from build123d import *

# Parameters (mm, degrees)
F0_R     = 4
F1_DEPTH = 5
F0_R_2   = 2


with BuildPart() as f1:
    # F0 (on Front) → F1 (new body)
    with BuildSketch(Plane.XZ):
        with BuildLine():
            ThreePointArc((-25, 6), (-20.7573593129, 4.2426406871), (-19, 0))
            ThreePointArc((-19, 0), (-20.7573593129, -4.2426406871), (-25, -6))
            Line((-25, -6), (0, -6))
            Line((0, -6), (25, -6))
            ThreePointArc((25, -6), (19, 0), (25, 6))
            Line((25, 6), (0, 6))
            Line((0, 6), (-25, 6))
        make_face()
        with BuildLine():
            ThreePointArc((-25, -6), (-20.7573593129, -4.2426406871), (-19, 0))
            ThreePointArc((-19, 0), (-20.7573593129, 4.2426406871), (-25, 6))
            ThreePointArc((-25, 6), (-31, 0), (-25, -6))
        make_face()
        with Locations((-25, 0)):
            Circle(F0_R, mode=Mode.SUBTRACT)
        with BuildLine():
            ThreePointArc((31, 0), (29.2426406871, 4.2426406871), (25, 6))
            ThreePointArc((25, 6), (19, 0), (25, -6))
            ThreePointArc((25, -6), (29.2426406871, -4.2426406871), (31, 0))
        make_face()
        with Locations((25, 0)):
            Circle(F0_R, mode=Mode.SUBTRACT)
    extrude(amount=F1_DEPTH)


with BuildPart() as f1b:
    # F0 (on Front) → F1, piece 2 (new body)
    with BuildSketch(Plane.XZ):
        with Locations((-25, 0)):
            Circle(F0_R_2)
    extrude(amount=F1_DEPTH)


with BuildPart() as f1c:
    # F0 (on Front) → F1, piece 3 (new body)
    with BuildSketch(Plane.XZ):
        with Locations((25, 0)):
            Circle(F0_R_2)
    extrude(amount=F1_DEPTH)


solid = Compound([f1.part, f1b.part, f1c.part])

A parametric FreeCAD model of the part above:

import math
import FreeCAD as App
import Part
import Sketcher
from FreeCAD import Vector
Q = App.Units.Quantity

doc = App.newDocument("Part")
body = doc.addObject("PartDesign::Body", "Body")

sketch1 = doc.addObject("Sketcher::SketchObject", "Sketch")
body.addObject(sketch1)
sketch1.AttachmentSupport = (doc.XZ_Plane, [""])
sketch1.MapMode = "FlatFace"
sketch1.addGeometry([
    Part.LineSegment(Vector(-25, -6, 0), Vector(25, -6, 0)),
    Part.ArcOfCircle(Part.Circle(Vector(25, 0, 0), Vector(0, 0, 1), 6), math.radians(-90), math.radians(0)),
    Part.ArcOfCircle(Part.Circle(Vector(25, 0, 0), Vector(0, 0, 1), 6), math.radians(0), math.radians(90)),
    Part.LineSegment(Vector(25, 6, 0), Vector(-25, 6, 0)),
    Part.ArcOfCircle(Part.Circle(Vector(-25, 0, 0), Vector(0, 0, 1), 6), math.radians(90), math.radians(270)),
    Part.Circle(Vector(-25, 0, 0), Vector(0, 0, 1), 4),
    Part.Circle(Vector(25, 0, 0), Vector(0, 0, 1), 4),
], False)
sketch1.addConstraint([
    Sketcher.Constraint("Tangent", 0, 2, 1, 1),
    Sketcher.Constraint("Tangent", 1, 2, 2, 1),
    Sketcher.Constraint("Tangent", 2, 2, 3, 1),
    Sketcher.Constraint("Tangent", 3, 2, 4, 1),
    Sketcher.Constraint("Tangent", 4, 2, 0, 1),
    Sketcher.Constraint("Horizontal", 0),
    Sketcher.Constraint("Horizontal", 3),
    Sketcher.Constraint("Coincident", 5, 3, 4, 3),
    Sketcher.Constraint("Coincident", 6, 3, 1, 3),
    Sketcher.Constraint("Equal", 1, 2),
    Sketcher.Constraint("Equal", 5, 6),
    Sketcher.Constraint("Symmetric", 1, 3, 4, 3, -1, 1),
    Sketcher.Constraint("PointOnObject", 1, 2, -1),
    Sketcher.Constraint("Diameter", 5, Q("8 mm")),
    Sketcher.Constraint("Radius", 1, Q("6 mm")),
    Sketcher.Constraint("DistanceX", 0, 1, 0, 2, Q("50 mm")),
])
pad1 = doc.addObject("PartDesign::Pad", "Pad")
body.addObject(pad1)
pad1.Profile = sketch1
pad1.Length = 5
body2 = doc.addObject("PartDesign::Body", "Body001")

sketch2 = doc.addObject("Sketcher::SketchObject", "Sketch001")
body2.addObject(sketch2)
sketch2.AttachmentSupport = (doc.getObject("XZ_Plane001"), [""])
sketch2.MapMode = "FlatFace"
sketch2.addGeometry(Part.Circle(Vector(-25, 0, 0), Vector(0, 0, 1), 2), False)
sketch2.addConstraint([
    Sketcher.Constraint("PointOnObject", 0, 3, -1),
    Sketcher.Constraint("Diameter", 0, Q("4 mm")),
    Sketcher.Constraint("DistanceX", 0, 3, -1, 1, Q("25 mm")),
])
pad2 = doc.addObject("PartDesign::Pad", "Pad001")
body2.addObject(pad2)
pad2.Profile = sketch2
pad2.Length = 5
body3 = doc.addObject("PartDesign::Body", "Body002")

sketch3 = doc.addObject("Sketcher::SketchObject", "Sketch002")
body3.addObject(sketch3)
sketch3.AttachmentSupport = (doc.getObject("XZ_Plane002"), [""])
sketch3.MapMode = "FlatFace"
sketch3.addGeometry(Part.Circle(Vector(25, 0, 0), Vector(0, 0, 1), 2), False)
sketch3.addConstraint([
    Sketcher.Constraint("PointOnObject", 0, 3, -1),
    Sketcher.Constraint("Diameter", 0, Q("4 mm")),
    Sketcher.Constraint("DistanceX", -1, 1, 0, 3, Q("25 mm")),
])
pad3 = doc.addObject("PartDesign::Pad", "Pad002")
body3.addObject(pad3)
pad3.Profile = sketch3
pad3.Length = 5

doc.recompute()
